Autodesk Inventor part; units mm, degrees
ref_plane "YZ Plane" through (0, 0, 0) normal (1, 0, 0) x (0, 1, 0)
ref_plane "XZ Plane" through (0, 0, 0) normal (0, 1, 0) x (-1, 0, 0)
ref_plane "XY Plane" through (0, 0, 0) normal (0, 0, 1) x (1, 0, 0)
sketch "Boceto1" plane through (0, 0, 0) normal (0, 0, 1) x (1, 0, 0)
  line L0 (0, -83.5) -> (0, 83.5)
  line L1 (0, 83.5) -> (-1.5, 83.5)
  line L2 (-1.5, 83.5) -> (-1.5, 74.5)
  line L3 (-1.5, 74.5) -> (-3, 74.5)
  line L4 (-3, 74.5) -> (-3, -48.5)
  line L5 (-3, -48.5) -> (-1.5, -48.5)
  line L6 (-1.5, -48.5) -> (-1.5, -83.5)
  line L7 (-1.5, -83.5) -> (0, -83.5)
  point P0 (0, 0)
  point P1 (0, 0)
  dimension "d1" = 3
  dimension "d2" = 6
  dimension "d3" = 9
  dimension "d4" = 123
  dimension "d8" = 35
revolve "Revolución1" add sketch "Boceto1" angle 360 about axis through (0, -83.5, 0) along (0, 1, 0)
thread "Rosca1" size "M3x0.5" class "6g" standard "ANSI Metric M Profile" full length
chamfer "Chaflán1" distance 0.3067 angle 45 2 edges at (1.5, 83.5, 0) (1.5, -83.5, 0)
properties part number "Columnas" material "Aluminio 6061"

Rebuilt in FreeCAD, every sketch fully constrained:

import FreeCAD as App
import Part
import Sketcher
from FreeCAD import Vector


def edges_at(feature, points):
    """Names of the edges that pass closest to the given points."""
    edges = feature.Shape.Edges
    near = lambda p: min(range(len(edges)), key=lambda i: edges[i].distToShape(Part.Vertex(*p))[0])
    return sorted({f"Edge{near(p) + 1}" for p in points})


def add_polygon(sketch, points):
    """Adds a closed chain of lines whose ends are joined by coincident constraints."""
    first, n = sketch.GeometryCount, len(points)
    for a, b in zip(points, points[1:] + points[:1]):
        sketch.addGeometry(Part.LineSegment(App.Vector(*a, 0), App.Vector(*b, 0)), False)
    for i in range(n):
        sketch.addConstraint(Sketcher.Constraint("Coincident", first + i, 2, first + (i + 1) % n, 1))

doc = App.newDocument("Part")
params = doc.addObject("Spreadsheet::Sheet", "Params")
for row, (alias, value) in enumerate([
    ("sketch1_height", "9 mm"),
    ("sketch1_height2", "123 mm"),
    ("sketch1_height3", "35 mm"),
    ("revolution_angle", "360 deg"),
    ("chamfer_size", "0.3067 mm"),
], start=1):
    params.set(f"A{row}", alias)
    params.set(f"B{row}", "=" + value)
    params.setAlias(f"B{row}", alias)

body = doc.addObject("PartDesign::Body", "Body")

sketch1 = body.newObject("Sketcher::SketchObject", "Sketch")
sketch1.AttachmentSupport = (doc.getObject("XY_Plane"), [""])
sketch1.MapMode = "FlatFace"
add_polygon(sketch1, [(-1.5, -83.5), (0, -83.5), (0, 83.5), (-1.5, 83.5), (-1.5, 74.5), (-3, 74.5), (-3, -48.5), (-1.5, -48.5)])
sketch1.addConstraint([
    Sketcher.Constraint("Horizontal", 0),
    Sketcher.Constraint("Vertical", 1),
    Sketcher.Constraint("Horizontal", 2),
    Sketcher.Constraint("Vertical", 3),
    Sketcher.Constraint("Horizontal", 4),
    Sketcher.Constraint("Vertical", 5),
    Sketcher.Constraint("Horizontal", 6),
    Sketcher.Constraint("Vertical", 7),
    Sketcher.Constraint("Symmetric", 0, 2, 1, 2, -1, 1),
    Sketcher.Constraint("Vertical", 3, 2, 6, 2),
    Sketcher.Constraint("Equal", 2, 4),
    Sketcher.Constraint("DistanceY", 3, 2, 3, 1, 9.0),
    Sketcher.Constraint("DistanceY", 5, 2, 5, 1, 123.0),
    Sketcher.Constraint("DistanceY", 7, 2, 7, 1, 35.0),
    Sketcher.Constraint("DistanceX", 4, 2, -1, 1, 3.0),
])
sketch1.setExpression("Constraints[19]", "Params.sketch1_height")
sketch1.setExpression("Constraints[20]", "Params.sketch1_height2")
sketch1.setExpression("Constraints[21]", "Params.sketch1_height3")
revolution = body.newObject("PartDesign::Revolution", "Revolution")
revolution.Profile = sketch1
revolution.ReferenceAxis = (sketch1, ["V_Axis"])
revolution.setExpression("Angle", "Params.revolution_angle")
doc.recompute()

chamfer = body.newObject("PartDesign::Chamfer", "Chamfer")
chamfer.Base = (revolution, edges_at(revolution, [(1.5, 83.5, 0), (1.5, -83.5, 0)]))
chamfer.setExpression("Size", "Params.chamfer_size")

doc.recompute()
